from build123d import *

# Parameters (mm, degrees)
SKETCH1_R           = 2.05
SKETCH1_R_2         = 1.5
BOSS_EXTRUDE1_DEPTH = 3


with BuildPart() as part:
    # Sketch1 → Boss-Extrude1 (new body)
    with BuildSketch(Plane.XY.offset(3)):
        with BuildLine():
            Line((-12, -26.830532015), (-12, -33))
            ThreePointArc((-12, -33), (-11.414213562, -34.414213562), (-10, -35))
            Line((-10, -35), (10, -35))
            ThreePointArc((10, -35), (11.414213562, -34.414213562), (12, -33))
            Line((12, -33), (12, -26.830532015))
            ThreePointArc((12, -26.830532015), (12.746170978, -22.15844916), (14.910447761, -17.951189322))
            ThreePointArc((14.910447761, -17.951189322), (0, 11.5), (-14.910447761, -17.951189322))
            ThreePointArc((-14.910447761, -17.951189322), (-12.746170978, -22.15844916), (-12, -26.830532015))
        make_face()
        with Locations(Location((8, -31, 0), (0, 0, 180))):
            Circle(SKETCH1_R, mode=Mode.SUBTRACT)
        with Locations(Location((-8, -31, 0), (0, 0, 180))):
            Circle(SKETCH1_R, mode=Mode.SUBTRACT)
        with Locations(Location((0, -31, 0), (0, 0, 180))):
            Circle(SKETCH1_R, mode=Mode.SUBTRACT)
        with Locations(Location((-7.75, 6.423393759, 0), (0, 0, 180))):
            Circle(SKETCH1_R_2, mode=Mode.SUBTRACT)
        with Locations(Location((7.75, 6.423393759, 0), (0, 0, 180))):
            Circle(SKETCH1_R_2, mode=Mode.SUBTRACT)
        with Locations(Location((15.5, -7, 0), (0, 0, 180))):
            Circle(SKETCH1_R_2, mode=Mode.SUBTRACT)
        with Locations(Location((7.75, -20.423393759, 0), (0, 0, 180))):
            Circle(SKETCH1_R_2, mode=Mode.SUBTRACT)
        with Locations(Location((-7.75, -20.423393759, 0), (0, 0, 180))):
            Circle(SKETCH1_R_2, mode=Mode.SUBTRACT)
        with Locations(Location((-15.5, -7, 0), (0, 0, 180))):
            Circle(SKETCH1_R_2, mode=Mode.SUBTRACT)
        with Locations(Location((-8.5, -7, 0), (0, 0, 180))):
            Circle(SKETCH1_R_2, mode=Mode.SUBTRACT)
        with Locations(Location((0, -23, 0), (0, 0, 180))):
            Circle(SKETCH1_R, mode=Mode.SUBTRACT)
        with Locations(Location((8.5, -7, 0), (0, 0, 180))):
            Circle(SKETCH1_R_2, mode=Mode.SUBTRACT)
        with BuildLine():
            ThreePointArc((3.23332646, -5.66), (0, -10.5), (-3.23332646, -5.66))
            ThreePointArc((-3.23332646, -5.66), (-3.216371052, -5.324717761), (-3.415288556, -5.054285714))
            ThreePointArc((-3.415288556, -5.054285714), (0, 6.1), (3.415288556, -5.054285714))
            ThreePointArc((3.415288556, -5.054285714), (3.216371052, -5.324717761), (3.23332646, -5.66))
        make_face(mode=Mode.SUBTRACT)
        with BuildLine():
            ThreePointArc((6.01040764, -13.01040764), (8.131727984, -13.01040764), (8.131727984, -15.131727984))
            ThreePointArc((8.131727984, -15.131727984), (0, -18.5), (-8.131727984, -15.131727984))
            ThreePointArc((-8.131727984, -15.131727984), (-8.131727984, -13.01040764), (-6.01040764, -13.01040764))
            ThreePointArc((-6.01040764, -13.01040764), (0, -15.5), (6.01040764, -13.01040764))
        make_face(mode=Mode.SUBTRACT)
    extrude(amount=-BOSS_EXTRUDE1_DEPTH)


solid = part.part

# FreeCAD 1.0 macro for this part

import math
import FreeCAD as App
import Part
import Sketcher
from FreeCAD import Vector
Q = App.Units.Quantity

doc = App.newDocument("Part")
body = doc.addObject("PartDesign::Body", "Body")

# Sketch on XY plane
sketch1 = body.newObject("Sketcher::SketchObject", "Sketch")
sketch1.AttachmentSupport = (doc.getObject("XY_Plane"), [""])
sketch1.MapMode = "FlatFace"
sketch1.AttachmentOffset = App.Placement(Vector(0, 0, 3), App.Rotation())
sketch1.addGeometry([
    Part.LineSegment(Vector(-12, -26.8, 0), Vector(-12, -33, 0)),  # 0
    Part.ArcOfCircle(Part.Circle(Vector(-10, -33, 0), Vector(0, 0, 1), 2), math.radians(-180), math.radians(-90)),  # 1
    Part.LineSegment(Vector(-10, -35, 0), Vector(10, -35, 0)),  # 2
    Part.ArcOfCircle(Part.Circle(Vector(10, -33, 0), Vector(0, 0, 1), 2), math.radians(-90), math.radians(0)),  # 3
    Part.LineSegment(Vector(12, -33, 0), Vector(12, -26.8, 0)),  # 4
    Part.ArcOfCircle(Part.Circle(Vector(27, -26.8, 0), Vector(0, 0, 1), 15), math.radians(144), math.radians(180)),  # 5
    Part.ArcOfCircle(Part.Circle(Vector(0, -7, 0), Vector(0, 0, 1), 18.5), math.radians(-36), math.radians(216)),  # 6
    Part.ArcOfCircle(Part.Circle(Vector(-27, -26.8, 0), Vector(0, 0, 1), 15), math.radians(0), math.radians(36)),  # 7
    Part.Circle(Vector(-8, -31, 0), Vector(0, 0, 1), 2),  # 8
    Part.Circle(Vector(-7.8, -20.4, 0), Vector(0, 0, 1), 1.5),  # 9
    Part.Circle(Vector(0, -31, 0), Vector(0, 0, 1), 2),  # 10
    Part.Circle(Vector(8, -31, 0), Vector(0, 0, 1), 2),  # 11
    Part.Circle(Vector(0, -23, 0), Vector(0, 0, 1), 2),  # 12
    Part.Circle(Vector(7.8, -20.4, 0), Vector(0, 0, 1), 1.5),  # 13
    Part.ArcOfCircle(Part.Circle(Vector(0, -7, 0), Vector(0, 0, 1), 8.5), math.radians(-135), math.radians(-45)),  # 14
    Part.ArcOfCircle(Part.Circle(Vector(7.1, -14.1, 0), Vector(0, 0, 1), 1.5), math.radians(-45), math.radians(135)),  # 15
    Part.ArcOfCircle(Part.Circle(Vector(0, -7, 0), Vector(0, 0, 1), 11.5), math.radians(-135), math.radians(-45)),  # 16
    Part.ArcOfCircle(Part.Circle(Vector(-7.1, -14.1, 0), Vector(0, 0, 1), 1.5), math.radians(45), math.radians(225)),  # 17
    Part.Circle(Vector(-15.5, -7, 0), Vector(0, 0, 1), 1.5),  # 18
    Part.Circle(Vector(-8.5, -7, 0), Vector(0, 0, 1), 1.5),  # 19
    Part.Circle(Vector(-7.8, 6.4, 0), Vector(0, 0, 1), 1.5),  # 20
    Part.Circle(Vector(8.5, -7, 0), Vector(0, 0, 1), 1.5),  # 21
    Part.Circle(Vector(15.5, -7, 0), Vector(0, 0, 1), 1.5),  # 22
    Part.ArcOfCircle(Part.Circle(Vector(3.7, -5.5, 0), Vector(0, 0, 1), 0.5), math.radians(124), math.radians(203)),  # 23
    Part.ArcOfCircle(Part.Circle(Vector(0, -7, 0), Vector(0, 0, 1), 3.5), math.radians(157), math.radians(383)),  # 24
    Part.ArcOfCircle(Part.Circle(Vector(-3.7, -5.5, 0), Vector(0, 0, 1), 0.5), math.radians(-23), math.radians(56)),  # 25
    Part.ArcOfCircle(Part.Circle(Vector(0, 0, 0), Vector(0, 0, 1), 6.1), math.radians(-56), math.radians(236)),  # 26
    Part.Circle(Vector(7.8, 6.4, 0), Vector(0, 0, 1), 1.5),  # 27
], False)
sketch1.addConstraint([
    Sketcher.Constraint("Tangent", 0, 2, 1, 1),
    Sketcher.Constraint("Tangent", 1, 2, 2, 1),
    Sketcher.Constraint("Tangent", 2, 2, 3, 1),
    Sketcher.Constraint("Tangent", 3, 2, 4, 1),
    Sketcher.Constraint("Tangent", 4, 2, 5, 2),
    Sketcher.Constraint("Tangent", 5, 1, 6, 1),
    Sketcher.Constraint("Tangent", 6, 2, 7, 2),
    Sketcher.Constraint("Tangent", 7, 1, 0, 1),
    Sketcher.Constraint("Tangent", 14, 2, 15, 2),
    Sketcher.Constraint("Tangent", 15, 1, 16, 2),
    Sketcher.Constraint("Tangent", 16, 1, 17, 2),
    Sketcher.Constraint("Tangent", 17, 1, 14, 1),
    Sketcher.Constraint("Tangent", 23, 2, 24, 2),
    Sketcher.Constraint("Tangent", 24, 1, 25, 1),
    Sketcher.Constraint("Tangent", 25, 2, 26, 2),
    Sketcher.Constraint("Tangent", 26, 1, 23, 1),
    Sketcher.Constraint("Vertical", 0),
    Sketcher.Constraint("Horizontal", 2),
    Sketcher.Constraint("Vertical", 4),
    Sketcher.Constraint("Coincident", 26, 3, -1, 1),
    Sketcher.Constraint("Coincident", 14, 3, 6, 3),
    Sketcher.Constraint("Coincident", 16, 3, 6, 3),
    Sketcher.Constraint("Coincident", 24, 3, 6, 3),
    Sketcher.Constraint("Equal", 1, 3),
    Sketcher.Constraint("Equal", 5, 7),
    Sketcher.Constraint("Equal", 8, 10),
    Sketcher.Constraint("Equal", 10, 11),
    Sketcher.Constraint("Equal", 11, 12),
    Sketcher.Constraint("Equal", 9, 13),
    Sketcher.Constraint("Equal", 13, 15),
    Sketcher.Constraint("Equal", 17, 18),
    Sketcher.Constraint("Equal", 18, 19),
    Sketcher.Constraint("Equal", 19, 20),
    Sketcher.Constraint("Equal", 20, 21),
    Sketcher.Constraint("Equal", 21, 22),
    Sketcher.Constraint("Equal", 23, 25),
    Sketcher.Constraint("Equal", 22, 27),
    Sketcher.Constraint("Symmetric", 5, 3, 7, 3, -2),
    Sketcher.Constraint("Symmetric", 8, 3, 11, 3, -2),
    Sketcher.Constraint("Symmetric", 9, 3, 13, 3, -2),
    Sketcher.Constraint("Symmetric", 19, 3, 21, 3, -2),
    Sketcher.Constraint("Symmetric", 18, 3, 22, 3, -2),
    Sketcher.Constraint("Symmetric", 20, 3, 27, 3, -2),
    Sketcher.Constraint("PointOnObject", 10, 3, -2),
    Sketcher.Constraint("PointOnObject", 12, 3, -2),
    Sketcher.Constraint("Horizontal", 8, 3, 10, 3),
    Sketcher.Constraint("Horizontal", 15, 3, 17, 3),
    Sketcher.Constraint("Horizontal", 16, 3, 18, 3),
    Sketcher.Constraint("Horizontal", 18, 3, 19, 3),
    Sketcher.Constraint("Vertical", 9, 3, 20, 3),
    Sketcher.Constraint("Diameter", 9, Q("3 mm")),
    Sketcher.Constraint("Radius", 1, Q("2 mm")),
    Sketcher.Constraint("Radius", 5, Q("15 mm")),
    Sketcher.Constraint("Diameter", 8, Q("4.1 mm")),
    Sketcher.Constraint("Radius", 6, Q("18.5 mm")),
    Sketcher.Constraint("Radius", 14, Q("8.5 mm")),
    Sketcher.Constraint("Radius", 23, Q("0.5 mm")),
    Sketcher.Constraint("Radius", 24, Q("3.5 mm")),
    Sketcher.Constraint("Radius", 26, Q("6.1 mm")),
    Sketcher.Constraint("DistanceX", 2, 1, 2, 2, Q("20 mm")),
    Sketcher.Constraint("DistanceY", 1, 3, -1, 1, Q("33 mm")),
    Sketcher.Constraint("DistanceY", 6, 3, -1, 1, Q("7 mm")),
    Sketcher.Constraint("DistanceX", 8, 3, -1, 1, Q("8 mm")),
    Sketcher.Constraint("DistanceY", 8, 3, -1, 1, Q("31 mm")),
    Sketcher.Constraint("DistanceY", 12, 3, -1, 1, Q("23 mm")),
    Sketcher.Constraint("DistanceX", 18, 3, 19, 3, Q("7 mm")),
    Sketcher.Constraint("DistanceX", 18, 3, -1, 1, Q("15.5 mm")),
    Sketcher.Constraint("DistanceX", 9, 3, 13, 3, Q("15.5 mm")),
    Sketcher.Constraint("DistanceY", 7, 3, 9, 3, Q("6.407138 mm")),
    Sketcher.Constraint("DistanceX", 15, 3, 5, 1, Q("7.83938 mm")),
    Sketcher.Constraint("DistanceY", -1, 1, 20, 3, Q("6.423394 mm")),
])
pad1 = body.newObject("PartDesign::Pad", "Pad")
pad1.Profile = sketch1
pad1.Length = 3
pad1.Reversed = True

doc.recompute()
